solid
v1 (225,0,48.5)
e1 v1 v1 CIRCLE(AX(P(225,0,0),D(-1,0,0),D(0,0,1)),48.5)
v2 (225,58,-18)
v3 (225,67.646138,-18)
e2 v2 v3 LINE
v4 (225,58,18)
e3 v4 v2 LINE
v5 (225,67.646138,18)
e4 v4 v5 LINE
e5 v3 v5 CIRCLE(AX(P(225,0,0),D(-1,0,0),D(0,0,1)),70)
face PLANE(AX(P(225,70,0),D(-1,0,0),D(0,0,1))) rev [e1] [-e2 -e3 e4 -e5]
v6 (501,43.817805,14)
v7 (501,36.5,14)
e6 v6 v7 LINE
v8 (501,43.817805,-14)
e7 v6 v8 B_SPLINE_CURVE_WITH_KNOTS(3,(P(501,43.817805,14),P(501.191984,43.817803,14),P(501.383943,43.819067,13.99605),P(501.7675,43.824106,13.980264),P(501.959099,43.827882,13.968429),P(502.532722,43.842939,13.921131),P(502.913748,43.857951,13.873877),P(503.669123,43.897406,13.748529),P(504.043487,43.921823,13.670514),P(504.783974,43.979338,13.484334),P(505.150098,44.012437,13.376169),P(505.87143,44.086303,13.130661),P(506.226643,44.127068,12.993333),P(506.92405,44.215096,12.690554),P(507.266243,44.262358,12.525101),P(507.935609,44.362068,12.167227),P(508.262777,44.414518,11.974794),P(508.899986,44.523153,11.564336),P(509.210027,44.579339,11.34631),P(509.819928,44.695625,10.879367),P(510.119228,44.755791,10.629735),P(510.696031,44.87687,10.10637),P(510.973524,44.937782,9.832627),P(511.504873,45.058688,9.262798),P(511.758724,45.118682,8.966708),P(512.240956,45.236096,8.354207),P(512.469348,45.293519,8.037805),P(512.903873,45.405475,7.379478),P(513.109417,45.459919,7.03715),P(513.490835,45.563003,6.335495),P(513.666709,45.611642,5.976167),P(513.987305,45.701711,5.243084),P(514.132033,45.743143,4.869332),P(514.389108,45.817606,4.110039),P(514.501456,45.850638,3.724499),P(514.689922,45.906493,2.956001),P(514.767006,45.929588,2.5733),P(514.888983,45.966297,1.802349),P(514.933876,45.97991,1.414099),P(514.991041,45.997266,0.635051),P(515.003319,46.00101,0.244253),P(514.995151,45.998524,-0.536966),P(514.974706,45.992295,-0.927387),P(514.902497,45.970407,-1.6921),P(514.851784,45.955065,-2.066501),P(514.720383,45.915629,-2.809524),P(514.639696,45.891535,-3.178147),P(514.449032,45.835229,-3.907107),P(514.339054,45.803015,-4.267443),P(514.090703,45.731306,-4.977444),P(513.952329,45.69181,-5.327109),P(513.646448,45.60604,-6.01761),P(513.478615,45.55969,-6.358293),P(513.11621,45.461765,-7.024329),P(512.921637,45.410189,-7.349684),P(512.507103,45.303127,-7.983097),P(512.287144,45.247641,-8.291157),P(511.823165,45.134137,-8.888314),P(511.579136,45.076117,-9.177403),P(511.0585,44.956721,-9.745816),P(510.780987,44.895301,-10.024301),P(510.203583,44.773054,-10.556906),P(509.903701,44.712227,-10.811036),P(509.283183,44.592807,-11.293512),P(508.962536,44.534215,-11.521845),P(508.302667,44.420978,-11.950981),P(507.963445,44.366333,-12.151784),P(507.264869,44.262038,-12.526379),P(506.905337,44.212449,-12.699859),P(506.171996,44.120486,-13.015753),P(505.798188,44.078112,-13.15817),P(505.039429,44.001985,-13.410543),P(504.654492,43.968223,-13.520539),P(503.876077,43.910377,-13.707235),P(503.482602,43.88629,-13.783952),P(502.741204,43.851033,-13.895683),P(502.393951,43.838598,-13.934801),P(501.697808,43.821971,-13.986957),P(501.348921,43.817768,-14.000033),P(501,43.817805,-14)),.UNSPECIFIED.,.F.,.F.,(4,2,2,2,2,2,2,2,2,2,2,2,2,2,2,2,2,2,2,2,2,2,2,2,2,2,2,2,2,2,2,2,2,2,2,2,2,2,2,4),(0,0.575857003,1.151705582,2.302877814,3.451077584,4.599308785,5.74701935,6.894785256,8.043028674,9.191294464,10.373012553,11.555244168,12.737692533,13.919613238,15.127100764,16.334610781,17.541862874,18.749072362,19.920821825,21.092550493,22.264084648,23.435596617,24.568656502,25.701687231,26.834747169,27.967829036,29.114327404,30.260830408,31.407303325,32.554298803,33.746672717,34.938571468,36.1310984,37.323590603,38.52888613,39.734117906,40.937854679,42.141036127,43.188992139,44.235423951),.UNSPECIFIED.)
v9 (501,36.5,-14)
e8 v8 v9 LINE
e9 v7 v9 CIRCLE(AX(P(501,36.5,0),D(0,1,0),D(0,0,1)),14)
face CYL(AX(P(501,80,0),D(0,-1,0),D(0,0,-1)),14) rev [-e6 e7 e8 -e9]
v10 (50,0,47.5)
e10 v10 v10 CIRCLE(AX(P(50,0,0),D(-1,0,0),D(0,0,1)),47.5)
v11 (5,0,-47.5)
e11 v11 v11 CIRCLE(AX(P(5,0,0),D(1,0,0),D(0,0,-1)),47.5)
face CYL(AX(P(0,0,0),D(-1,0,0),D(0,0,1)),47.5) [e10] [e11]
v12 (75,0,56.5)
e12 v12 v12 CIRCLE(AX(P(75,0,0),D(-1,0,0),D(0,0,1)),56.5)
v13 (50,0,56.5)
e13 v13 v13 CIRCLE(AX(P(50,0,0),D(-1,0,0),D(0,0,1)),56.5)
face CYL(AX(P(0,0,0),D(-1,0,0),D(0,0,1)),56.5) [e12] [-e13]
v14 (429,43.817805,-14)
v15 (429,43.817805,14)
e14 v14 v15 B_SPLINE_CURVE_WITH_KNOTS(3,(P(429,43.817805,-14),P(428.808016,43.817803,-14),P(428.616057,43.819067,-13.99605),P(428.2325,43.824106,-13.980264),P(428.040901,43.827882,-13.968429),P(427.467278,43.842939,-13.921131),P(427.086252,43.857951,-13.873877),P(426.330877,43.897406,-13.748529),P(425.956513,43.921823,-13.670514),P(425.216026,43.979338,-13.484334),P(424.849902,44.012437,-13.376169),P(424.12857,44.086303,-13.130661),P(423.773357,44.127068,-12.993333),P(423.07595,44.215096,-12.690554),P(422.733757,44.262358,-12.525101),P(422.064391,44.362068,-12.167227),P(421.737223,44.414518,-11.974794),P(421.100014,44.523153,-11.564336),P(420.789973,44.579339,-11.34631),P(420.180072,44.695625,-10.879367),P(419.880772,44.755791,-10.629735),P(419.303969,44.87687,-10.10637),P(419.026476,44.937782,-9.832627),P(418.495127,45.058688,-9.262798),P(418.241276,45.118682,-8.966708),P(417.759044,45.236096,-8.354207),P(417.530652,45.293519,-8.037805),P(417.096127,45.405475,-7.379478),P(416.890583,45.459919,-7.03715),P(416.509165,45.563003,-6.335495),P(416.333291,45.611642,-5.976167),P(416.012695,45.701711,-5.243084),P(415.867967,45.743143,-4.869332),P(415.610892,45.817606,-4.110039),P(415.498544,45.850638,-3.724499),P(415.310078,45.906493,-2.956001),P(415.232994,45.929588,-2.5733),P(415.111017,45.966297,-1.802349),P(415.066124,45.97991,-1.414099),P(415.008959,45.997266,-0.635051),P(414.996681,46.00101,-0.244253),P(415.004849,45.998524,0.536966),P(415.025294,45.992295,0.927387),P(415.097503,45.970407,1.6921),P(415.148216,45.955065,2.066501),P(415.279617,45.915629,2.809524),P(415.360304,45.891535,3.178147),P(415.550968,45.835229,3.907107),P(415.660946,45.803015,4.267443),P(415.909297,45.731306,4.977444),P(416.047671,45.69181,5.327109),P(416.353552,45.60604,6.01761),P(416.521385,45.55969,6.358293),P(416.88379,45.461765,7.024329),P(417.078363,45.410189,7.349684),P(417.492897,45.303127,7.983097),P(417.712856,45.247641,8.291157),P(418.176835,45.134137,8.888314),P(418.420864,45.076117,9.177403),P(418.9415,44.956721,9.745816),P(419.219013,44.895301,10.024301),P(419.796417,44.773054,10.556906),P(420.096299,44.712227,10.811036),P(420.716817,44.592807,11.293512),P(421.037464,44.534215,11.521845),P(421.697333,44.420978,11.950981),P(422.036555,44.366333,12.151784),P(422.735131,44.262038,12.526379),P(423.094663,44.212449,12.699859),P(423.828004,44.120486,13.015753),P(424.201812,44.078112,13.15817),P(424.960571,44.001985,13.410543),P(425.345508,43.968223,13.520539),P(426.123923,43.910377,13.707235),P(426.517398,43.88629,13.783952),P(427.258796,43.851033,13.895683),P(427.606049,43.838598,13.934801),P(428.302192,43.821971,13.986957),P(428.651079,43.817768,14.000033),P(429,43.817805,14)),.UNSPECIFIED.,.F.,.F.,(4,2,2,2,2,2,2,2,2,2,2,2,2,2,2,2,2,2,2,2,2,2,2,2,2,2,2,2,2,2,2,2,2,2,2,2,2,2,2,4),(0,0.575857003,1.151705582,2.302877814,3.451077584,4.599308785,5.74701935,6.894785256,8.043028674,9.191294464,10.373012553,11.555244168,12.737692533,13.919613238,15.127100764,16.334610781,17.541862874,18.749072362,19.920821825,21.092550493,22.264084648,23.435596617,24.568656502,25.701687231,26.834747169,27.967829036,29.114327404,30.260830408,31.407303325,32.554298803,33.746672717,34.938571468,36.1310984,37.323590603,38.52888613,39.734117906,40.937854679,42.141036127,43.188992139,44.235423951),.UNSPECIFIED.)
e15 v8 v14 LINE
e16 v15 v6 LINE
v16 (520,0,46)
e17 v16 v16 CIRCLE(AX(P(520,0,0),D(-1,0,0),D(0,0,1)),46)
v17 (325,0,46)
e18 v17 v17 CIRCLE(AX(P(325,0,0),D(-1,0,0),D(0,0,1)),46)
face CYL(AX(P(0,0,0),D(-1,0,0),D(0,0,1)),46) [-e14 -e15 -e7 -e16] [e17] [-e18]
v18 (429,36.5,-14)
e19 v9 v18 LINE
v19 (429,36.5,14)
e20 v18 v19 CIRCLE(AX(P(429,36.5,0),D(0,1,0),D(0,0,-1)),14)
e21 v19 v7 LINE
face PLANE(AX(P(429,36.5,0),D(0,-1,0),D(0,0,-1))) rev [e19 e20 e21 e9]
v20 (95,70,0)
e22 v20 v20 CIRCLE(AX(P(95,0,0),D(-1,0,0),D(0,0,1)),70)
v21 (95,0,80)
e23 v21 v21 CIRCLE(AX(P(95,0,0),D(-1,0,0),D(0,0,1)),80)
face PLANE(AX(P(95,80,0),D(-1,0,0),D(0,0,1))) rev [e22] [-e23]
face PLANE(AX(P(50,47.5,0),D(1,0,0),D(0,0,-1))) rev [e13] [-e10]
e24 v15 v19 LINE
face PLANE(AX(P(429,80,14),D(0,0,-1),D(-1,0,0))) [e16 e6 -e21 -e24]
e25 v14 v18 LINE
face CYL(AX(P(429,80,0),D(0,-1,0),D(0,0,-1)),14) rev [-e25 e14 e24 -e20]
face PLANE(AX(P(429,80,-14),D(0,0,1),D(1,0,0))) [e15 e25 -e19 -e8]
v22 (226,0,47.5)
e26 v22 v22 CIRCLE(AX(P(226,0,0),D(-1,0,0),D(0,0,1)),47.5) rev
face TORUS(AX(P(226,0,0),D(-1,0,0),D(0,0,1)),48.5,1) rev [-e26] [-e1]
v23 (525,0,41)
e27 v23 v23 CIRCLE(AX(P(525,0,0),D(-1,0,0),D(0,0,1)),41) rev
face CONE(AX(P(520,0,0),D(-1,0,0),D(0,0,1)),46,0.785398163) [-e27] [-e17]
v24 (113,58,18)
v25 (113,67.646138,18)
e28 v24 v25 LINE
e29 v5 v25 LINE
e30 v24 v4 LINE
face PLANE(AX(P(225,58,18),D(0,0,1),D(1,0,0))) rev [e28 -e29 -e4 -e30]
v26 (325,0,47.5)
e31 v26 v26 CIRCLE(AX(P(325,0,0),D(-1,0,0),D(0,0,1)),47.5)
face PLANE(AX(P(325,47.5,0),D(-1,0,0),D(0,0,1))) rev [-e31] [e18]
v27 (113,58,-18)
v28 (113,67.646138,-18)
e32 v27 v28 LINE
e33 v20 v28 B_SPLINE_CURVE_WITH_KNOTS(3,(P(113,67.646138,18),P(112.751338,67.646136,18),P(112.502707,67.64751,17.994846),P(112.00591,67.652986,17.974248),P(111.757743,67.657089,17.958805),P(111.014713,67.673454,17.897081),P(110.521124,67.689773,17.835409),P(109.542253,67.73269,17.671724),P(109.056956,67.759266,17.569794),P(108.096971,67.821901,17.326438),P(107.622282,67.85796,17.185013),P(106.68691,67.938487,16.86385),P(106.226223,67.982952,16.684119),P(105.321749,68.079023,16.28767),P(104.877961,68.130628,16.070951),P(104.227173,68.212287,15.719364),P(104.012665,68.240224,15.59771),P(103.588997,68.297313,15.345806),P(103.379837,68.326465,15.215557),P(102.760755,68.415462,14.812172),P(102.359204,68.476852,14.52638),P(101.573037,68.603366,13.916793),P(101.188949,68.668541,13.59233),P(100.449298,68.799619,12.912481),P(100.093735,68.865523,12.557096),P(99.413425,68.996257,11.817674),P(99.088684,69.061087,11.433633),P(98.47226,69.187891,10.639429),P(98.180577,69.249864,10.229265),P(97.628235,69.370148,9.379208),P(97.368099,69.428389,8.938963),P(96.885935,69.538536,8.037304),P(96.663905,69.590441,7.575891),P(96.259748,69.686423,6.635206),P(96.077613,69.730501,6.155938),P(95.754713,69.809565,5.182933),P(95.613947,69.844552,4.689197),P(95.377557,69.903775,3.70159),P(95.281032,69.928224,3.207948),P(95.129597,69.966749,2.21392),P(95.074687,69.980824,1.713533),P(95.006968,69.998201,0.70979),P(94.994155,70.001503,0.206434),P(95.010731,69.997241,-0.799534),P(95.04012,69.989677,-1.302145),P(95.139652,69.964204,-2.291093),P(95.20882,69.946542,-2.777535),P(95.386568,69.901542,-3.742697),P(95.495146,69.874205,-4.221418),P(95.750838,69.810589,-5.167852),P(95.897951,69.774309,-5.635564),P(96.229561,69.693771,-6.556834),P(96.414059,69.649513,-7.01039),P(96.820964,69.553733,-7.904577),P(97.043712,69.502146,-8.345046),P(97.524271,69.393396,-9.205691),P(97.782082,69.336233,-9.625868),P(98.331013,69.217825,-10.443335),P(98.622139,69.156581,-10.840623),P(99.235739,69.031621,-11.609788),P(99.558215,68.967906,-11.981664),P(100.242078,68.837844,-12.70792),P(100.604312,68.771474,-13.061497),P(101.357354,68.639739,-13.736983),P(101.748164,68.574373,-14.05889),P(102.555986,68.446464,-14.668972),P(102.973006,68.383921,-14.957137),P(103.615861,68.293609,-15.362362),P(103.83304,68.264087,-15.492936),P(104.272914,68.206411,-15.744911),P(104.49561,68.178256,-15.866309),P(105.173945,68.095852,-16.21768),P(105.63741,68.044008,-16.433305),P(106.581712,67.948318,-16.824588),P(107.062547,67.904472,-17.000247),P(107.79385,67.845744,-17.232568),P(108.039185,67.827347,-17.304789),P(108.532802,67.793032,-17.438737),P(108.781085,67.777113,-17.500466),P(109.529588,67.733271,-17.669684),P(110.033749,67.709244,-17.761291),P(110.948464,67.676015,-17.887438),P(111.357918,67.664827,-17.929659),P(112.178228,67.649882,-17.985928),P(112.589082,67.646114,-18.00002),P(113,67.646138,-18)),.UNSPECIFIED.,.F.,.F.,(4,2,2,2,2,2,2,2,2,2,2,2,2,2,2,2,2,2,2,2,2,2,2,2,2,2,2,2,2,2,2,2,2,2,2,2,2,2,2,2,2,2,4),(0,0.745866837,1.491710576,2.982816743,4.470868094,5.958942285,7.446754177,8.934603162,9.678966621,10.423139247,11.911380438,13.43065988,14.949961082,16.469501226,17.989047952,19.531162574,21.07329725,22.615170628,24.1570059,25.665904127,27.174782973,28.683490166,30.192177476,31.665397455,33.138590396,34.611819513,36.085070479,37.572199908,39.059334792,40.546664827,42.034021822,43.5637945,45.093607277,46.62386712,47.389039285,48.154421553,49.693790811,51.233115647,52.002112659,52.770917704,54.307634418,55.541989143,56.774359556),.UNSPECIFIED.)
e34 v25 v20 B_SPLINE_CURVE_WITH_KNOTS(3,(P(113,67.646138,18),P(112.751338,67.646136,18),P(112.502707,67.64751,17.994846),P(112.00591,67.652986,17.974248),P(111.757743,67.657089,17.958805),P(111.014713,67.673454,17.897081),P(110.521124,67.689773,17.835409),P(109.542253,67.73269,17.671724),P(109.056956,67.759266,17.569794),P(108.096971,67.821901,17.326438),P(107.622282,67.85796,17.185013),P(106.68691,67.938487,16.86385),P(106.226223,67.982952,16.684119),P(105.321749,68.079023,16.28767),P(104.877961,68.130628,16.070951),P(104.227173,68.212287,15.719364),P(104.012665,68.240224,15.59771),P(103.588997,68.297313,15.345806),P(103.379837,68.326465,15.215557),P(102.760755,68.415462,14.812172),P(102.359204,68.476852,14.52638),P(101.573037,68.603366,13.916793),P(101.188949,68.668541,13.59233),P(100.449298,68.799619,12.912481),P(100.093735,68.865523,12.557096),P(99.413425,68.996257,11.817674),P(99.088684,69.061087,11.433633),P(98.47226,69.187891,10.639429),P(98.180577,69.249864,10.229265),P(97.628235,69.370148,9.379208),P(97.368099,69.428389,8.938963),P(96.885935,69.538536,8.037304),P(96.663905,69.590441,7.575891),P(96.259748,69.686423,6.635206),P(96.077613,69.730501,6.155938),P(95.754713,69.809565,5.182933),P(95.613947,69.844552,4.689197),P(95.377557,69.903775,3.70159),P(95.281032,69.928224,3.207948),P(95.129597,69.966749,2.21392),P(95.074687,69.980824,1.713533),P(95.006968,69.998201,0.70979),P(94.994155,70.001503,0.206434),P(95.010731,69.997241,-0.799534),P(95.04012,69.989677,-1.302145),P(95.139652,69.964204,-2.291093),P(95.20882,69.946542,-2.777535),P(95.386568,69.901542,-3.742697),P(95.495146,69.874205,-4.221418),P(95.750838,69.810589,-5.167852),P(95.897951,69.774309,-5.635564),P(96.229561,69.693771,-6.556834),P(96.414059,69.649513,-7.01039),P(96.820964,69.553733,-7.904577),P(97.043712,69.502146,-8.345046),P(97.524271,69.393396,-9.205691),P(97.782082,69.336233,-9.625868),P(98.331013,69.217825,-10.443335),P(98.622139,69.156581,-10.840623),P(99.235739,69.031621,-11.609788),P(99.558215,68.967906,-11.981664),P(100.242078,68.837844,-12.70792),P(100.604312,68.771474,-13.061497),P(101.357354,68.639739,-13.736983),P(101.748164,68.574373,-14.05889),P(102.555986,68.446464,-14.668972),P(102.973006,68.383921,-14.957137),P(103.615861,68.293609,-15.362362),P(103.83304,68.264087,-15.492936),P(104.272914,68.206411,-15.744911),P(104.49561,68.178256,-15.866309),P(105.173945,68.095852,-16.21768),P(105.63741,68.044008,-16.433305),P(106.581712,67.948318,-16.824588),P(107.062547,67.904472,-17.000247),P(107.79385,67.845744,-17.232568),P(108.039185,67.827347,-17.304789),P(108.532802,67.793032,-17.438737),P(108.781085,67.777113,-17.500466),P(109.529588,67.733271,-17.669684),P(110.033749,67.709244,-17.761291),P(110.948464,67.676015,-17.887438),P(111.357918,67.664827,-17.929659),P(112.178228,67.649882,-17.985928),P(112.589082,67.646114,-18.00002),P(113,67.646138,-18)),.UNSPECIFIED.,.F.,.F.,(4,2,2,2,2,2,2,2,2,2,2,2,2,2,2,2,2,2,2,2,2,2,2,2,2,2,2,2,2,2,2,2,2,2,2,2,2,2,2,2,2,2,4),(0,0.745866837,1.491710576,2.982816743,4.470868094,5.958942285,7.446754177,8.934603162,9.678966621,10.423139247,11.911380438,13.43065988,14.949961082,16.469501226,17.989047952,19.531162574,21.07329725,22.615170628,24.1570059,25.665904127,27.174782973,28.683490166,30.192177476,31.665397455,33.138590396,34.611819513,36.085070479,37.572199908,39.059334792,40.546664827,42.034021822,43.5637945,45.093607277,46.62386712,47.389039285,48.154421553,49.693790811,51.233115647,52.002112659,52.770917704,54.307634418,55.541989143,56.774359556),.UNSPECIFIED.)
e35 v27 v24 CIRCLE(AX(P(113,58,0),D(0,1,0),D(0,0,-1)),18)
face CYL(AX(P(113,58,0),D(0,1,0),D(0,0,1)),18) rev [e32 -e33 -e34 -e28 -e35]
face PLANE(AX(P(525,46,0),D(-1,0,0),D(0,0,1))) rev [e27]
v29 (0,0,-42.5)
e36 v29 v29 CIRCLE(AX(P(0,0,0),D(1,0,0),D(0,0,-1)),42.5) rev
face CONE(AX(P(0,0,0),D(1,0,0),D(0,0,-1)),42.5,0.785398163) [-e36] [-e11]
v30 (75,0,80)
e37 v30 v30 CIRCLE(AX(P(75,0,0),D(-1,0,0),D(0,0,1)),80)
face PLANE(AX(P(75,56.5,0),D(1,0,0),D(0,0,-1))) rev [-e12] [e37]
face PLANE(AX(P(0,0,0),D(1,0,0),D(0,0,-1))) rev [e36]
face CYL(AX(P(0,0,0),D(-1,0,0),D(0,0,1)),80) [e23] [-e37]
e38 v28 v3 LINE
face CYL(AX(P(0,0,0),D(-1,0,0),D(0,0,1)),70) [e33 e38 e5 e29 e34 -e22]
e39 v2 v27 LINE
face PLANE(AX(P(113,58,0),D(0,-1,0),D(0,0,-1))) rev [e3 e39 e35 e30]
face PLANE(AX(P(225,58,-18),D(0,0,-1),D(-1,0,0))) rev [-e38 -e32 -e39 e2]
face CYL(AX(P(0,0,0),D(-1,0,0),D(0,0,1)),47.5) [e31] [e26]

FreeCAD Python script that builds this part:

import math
import FreeCAD as App
import Part
import Sketcher
Q = App.Units.Quantity


def edges_at(feature, points):
    """Names of the edges that pass closest to the given points."""
    edges = feature.Shape.Edges
    near = lambda p: min(range(len(edges)), key=lambda i: edges[i].distToShape(Part.Vertex(*p))[0])
    return sorted({f"Edge{near(p) + 1}" for p in points})

doc = App.newDocument("Part")
body = doc.addObject("PartDesign::Body", "Body")

# Sketch on XY plane
sketch1 = doc.addObject("Sketcher::SketchObject", "Sketch")
body.addObject(sketch1)
sketch1.AttachmentSupport = (doc.XY_Plane, [""])
sketch1.MapMode = "FlatFace"
sketch1.addGeometry(Part.LineSegment(App.Vector(0, 47.5, 0), App.Vector(0, 0, 0)), False)
sketch1.addGeometry(Part.LineSegment(App.Vector(0, 0, 0), App.Vector(525, 0, 0)), False)
sketch1.addGeometry(Part.LineSegment(App.Vector(525, 0, 0), App.Vector(525, 46, 0)), False)
sketch1.addGeometry(Part.LineSegment(App.Vector(525, 46, 0), App.Vector(325, 46, 0)), False)
sketch1.addGeometry(Part.LineSegment(App.Vector(325, 46, 0), App.Vector(325, 47.5, 0)), False)
sketch1.addGeometry(Part.LineSegment(App.Vector(325, 47.5, 0), App.Vector(225, 47.5, 0)), False)
sketch1.addGeometry(Part.LineSegment(App.Vector(225, 47.5, 0), App.Vector(225, 70, 0)), False)
sketch1.addGeometry(Part.LineSegment(App.Vector(225, 70, 0), App.Vector(95, 70, 0)), False)
sketch1.addGeometry(Part.LineSegment(App.Vector(95, 70, 0), App.Vector(95, 80, 0)), False)
sketch1.addGeometry(Part.LineSegment(App.Vector(95, 80, 0), App.Vector(75, 80, 0)), False)
sketch1.addGeometry(Part.LineSegment(App.Vector(75, 80, 0), App.Vector(75, 56.5, 0)), False)
sketch1.addGeometry(Part.LineSegment(App.Vector(75, 56.5, 0), App.Vector(50, 56.5, 0)), False)
sketch1.addGeometry(Part.LineSegment(App.Vector(50, 56.5, 0), App.Vector(50, 47.5, 0)), False)
sketch1.addGeometry(Part.LineSegment(App.Vector(50, 47.5, 0), App.Vector(0, 47.5, 0)), False)
sketch1.addConstraint(Sketcher.Constraint("Coincident", 0, 2, 1, 1))
sketch1.addConstraint(Sketcher.Constraint("Coincident", 1, 2, 2, 1))
sketch1.addConstraint(Sketcher.Constraint("Coincident", 2, 2, 3, 1))
sketch1.addConstraint(Sketcher.Constraint("Coincident", 3, 2, 4, 1))
sketch1.addConstraint(Sketcher.Constraint("Coincident", 4, 2, 5, 1))
sketch1.addConstraint(Sketcher.Constraint("Coincident", 5, 2, 6, 1))
sketch1.addConstraint(Sketcher.Constraint("Coincident", 6, 2, 7, 1))
sketch1.addConstraint(Sketcher.Constraint("Coincident", 7, 2, 8, 1))
sketch1.addConstraint(Sketcher.Constraint("Coincident", 8, 2, 9, 1))
sketch1.addConstraint(Sketcher.Constraint("Coincident", 9, 2, 10, 1))
sketch1.addConstraint(Sketcher.Constraint("Coincident", 10, 2, 11, 1))
sketch1.addConstraint(Sketcher.Constraint("Coincident", 11, 2, 12, 1))
sketch1.addConstraint(Sketcher.Constraint("Coincident", 12, 2, 13, 1))
sketch1.addConstraint(Sketcher.Constraint("Coincident", 13, 2, 0, 1))
sketch1.addConstraint(Sketcher.Constraint("Vertical", 0))
sketch1.addConstraint(Sketcher.Constraint("Horizontal", 1))
sketch1.addConstraint(Sketcher.Constraint("Vertical", 2))
sketch1.addConstraint(Sketcher.Constraint("Horizontal", 3))
sketch1.addConstraint(Sketcher.Constraint("Vertical", 4))
sketch1.addConstraint(Sketcher.Constraint("Horizontal", 5))
sketch1.addConstraint(Sketcher.Constraint("Vertical", 6))
sketch1.addConstraint(Sketcher.Constraint("Horizontal", 7))
sketch1.addConstraint(Sketcher.Constraint("Vertical", 8))
sketch1.addConstraint(Sketcher.Constraint("Horizontal", 9))
sketch1.addConstraint(Sketcher.Constraint("Vertical", 10))
sketch1.addConstraint(Sketcher.Constraint("Horizontal", 11))
sketch1.addConstraint(Sketcher.Constraint("Vertical", 12))
sketch1.addConstraint(Sketcher.Constraint("Horizontal", 13))
sketch1.addConstraint(Sketcher.Constraint("Coincident", 0, 2, -1, 1))
sketch1.addConstraint(Sketcher.Constraint("Horizontal", 5, 2, 12, 2))
sketch1.addConstraint(Sketcher.Constraint("DistanceX", 1, 1, 1, 2, Q("525 mm")))
sketch1.addConstraint(Sketcher.Constraint("DistanceX", 3, 2, 3, 1, Q("200 mm")))
sketch1.addConstraint(Sketcher.Constraint("DistanceX", 5, 2, 5, 1, Q("100 mm")))
sketch1.addConstraint(Sketcher.Constraint("DistanceX", 7, 2, 7, 1, Q("130 mm")))
sketch1.addConstraint(Sketcher.Constraint("DistanceX", 9, 2, 9, 1, Q("20 mm")))
sketch1.addConstraint(Sketcher.Constraint("DistanceX", 11, 2, 11, 1, Q("25 mm")))
sketch1.addConstraint(Sketcher.Constraint("DistanceY", 2, 1, 2, 2, Q("46 mm")))
sketch1.addConstraint(Sketcher.Constraint("DistanceY", 8, 1, 8, 2, Q("10 mm")))
sketch1.addConstraint(Sketcher.Constraint("DistanceY", 12, 2, 12, 1, Q("9 mm")))
sketch1.addConstraint(Sketcher.Constraint("DistanceY", 0, 2, 0, 1, Q("47.5 mm")))
sketch1.addConstraint(Sketcher.Constraint("DistanceY", 6, 1, 6, 2, Q("22.5 mm")))
revolution = doc.addObject("PartDesign::Revolution", "Revolution")
body.addObject(revolution)
revolution.Profile = sketch1
revolution.ReferenceAxis = (sketch1, ["H_Axis"])
revolution.Angle = 360

# Sketch on XZ plane
sketch2 = doc.addObject("Sketcher::SketchObject", "Sketch001")
body.addObject(sketch2)
sketch2.AttachmentSupport = (doc.XZ_Plane, [""])
sketch2.MapMode = "FlatFace"
sketch2.AttachmentOffset = App.Placement(App.Vector(0, 0, -70), App.Rotation())
sketch2.addGeometry(Part.LineSegment(App.Vector(225, 18, 0), App.Vector(225, -18, 0)), False)
sketch2.addGeometry(Part.LineSegment(App.Vector(225, -18, 0), App.Vector(113, -18, 0)), False)
sketch2.addGeometry(Part.ArcOfCircle(Part.Circle(App.Vector(113, 0, 0), App.Vector(0, 0, 1), 18), math.radians(90), math.radians(270)), False)
sketch2.addGeometry(Part.LineSegment(App.Vector(113, 18, 0), App.Vector(225, 18, 0)), False)
sketch2.addConstraint(Sketcher.Constraint("Coincident", 0, 2, 1, 1))
sketch2.addConstraint(Sketcher.Constraint("Tangent", 1, 2, 2, 2))
sketch2.addConstraint(Sketcher.Constraint("Tangent", 2, 1, 3, 1))
sketch2.addConstraint(Sketcher.Constraint("Coincident", 3, 2, 0, 1))
sketch2.addConstraint(Sketcher.Constraint("Vertical", 0))
sketch2.addConstraint(Sketcher.Constraint("Horizontal", 1))
sketch2.addConstraint(Sketcher.Constraint("Horizontal", 3))
sketch2.addConstraint(Sketcher.Constraint("PointOnObject", 2, 3, -1))
sketch2.addConstraint(Sketcher.Constraint("Radius", 2, Q("18 mm")))
sketch2.addConstraint(Sketcher.Constraint("DistanceX", 1, 2, 1, 1, Q("112 mm")))
sketch2.addConstraint(Sketcher.Constraint("DistanceX", -1, 1, 2, 3, Q("113 mm")))
pocket1 = doc.addObject("PartDesign::Pocket", "Pocket")
body.addObject(pocket1)
pocket1.Profile = sketch2
pocket1.Length = 12
pocket1.Reversed = True

# Sketch on XZ plane
sketch3 = doc.addObject("Sketcher::SketchObject", "Sketch002")
body.addObject(sketch3)
sketch3.AttachmentSupport = (doc.XZ_Plane, [""])
sketch3.MapMode = "FlatFace"
sketch3.AttachmentOffset = App.Placement(App.Vector(0, 0, -36.5), App.Rotation())
sketch3.addGeometry(Part.LineSegment(App.Vector(429, 14, 0), App.Vector(501, 14, 0)), False)
sketch3.addGeometry(Part.ArcOfCircle(Part.Circle(App.Vector(501, 0, 0), App.Vector(0, 0, 1), 14), math.radians(-90), math.radians(90)), False)
sketch3.addGeometry(Part.LineSegment(App.Vector(501, -14, 0), App.Vector(429, -14, 0)), False)
sketch3.addGeometry(Part.ArcOfCircle(Part.Circle(App.Vector(429, 0, 0), App.Vector(0, 0, 1), 14), math.radians(90), math.radians(270)), False)
sketch3.addConstraint(Sketcher.Constraint("Tangent", 0, 2, 1, 2))
sketch3.addConstraint(Sketcher.Constraint("Tangent", 1, 1, 2, 1))
sketch3.addConstraint(Sketcher.Constraint("Tangent", 2, 2, 3, 2))
sketch3.addConstraint(Sketcher.Constraint("Tangent", 3, 1, 0, 1))
sketch3.addConstraint(Sketcher.Constraint("Horizontal", 0))
sketch3.addConstraint(Sketcher.Constraint("Horizontal", 2))
sketch3.addConstraint(Sketcher.Constraint("PointOnObject", 1, 3, -1))
sketch3.addConstraint(Sketcher.Constraint("Radius", 1, Q("14 mm")))
sketch3.addConstraint(Sketcher.Constraint("DistanceX", 0, 1, 0, 2, Q("72 mm")))
sketch3.addConstraint(Sketcher.Constraint("DistanceX", -1, 1, 1, 3, Q("501 mm")))
pocket2 = doc.addObject("PartDesign::Pocket", "Pocket001")
body.addObject(pocket2)
pocket2.Profile = sketch3
pocket2.Type = "ThroughAll"
doc.recompute()

chamfer = doc.addObject("PartDesign::Chamfer", "Chamfer")
body.addObject(chamfer)
chamfer.Base = (pocket2, edges_at(pocket2, [(0, 0, -47.5), (525, 0, -46)]))
chamfer.Size = 5
doc.recompute()

fillet = doc.addObject("PartDesign::Fillet", "Fillet")
body.addObject(fillet)
fillet.Base = (chamfer, edges_at(chamfer, [(225, 0, -47.5)]))
fillet.Radius = 1

doc.recompute()
